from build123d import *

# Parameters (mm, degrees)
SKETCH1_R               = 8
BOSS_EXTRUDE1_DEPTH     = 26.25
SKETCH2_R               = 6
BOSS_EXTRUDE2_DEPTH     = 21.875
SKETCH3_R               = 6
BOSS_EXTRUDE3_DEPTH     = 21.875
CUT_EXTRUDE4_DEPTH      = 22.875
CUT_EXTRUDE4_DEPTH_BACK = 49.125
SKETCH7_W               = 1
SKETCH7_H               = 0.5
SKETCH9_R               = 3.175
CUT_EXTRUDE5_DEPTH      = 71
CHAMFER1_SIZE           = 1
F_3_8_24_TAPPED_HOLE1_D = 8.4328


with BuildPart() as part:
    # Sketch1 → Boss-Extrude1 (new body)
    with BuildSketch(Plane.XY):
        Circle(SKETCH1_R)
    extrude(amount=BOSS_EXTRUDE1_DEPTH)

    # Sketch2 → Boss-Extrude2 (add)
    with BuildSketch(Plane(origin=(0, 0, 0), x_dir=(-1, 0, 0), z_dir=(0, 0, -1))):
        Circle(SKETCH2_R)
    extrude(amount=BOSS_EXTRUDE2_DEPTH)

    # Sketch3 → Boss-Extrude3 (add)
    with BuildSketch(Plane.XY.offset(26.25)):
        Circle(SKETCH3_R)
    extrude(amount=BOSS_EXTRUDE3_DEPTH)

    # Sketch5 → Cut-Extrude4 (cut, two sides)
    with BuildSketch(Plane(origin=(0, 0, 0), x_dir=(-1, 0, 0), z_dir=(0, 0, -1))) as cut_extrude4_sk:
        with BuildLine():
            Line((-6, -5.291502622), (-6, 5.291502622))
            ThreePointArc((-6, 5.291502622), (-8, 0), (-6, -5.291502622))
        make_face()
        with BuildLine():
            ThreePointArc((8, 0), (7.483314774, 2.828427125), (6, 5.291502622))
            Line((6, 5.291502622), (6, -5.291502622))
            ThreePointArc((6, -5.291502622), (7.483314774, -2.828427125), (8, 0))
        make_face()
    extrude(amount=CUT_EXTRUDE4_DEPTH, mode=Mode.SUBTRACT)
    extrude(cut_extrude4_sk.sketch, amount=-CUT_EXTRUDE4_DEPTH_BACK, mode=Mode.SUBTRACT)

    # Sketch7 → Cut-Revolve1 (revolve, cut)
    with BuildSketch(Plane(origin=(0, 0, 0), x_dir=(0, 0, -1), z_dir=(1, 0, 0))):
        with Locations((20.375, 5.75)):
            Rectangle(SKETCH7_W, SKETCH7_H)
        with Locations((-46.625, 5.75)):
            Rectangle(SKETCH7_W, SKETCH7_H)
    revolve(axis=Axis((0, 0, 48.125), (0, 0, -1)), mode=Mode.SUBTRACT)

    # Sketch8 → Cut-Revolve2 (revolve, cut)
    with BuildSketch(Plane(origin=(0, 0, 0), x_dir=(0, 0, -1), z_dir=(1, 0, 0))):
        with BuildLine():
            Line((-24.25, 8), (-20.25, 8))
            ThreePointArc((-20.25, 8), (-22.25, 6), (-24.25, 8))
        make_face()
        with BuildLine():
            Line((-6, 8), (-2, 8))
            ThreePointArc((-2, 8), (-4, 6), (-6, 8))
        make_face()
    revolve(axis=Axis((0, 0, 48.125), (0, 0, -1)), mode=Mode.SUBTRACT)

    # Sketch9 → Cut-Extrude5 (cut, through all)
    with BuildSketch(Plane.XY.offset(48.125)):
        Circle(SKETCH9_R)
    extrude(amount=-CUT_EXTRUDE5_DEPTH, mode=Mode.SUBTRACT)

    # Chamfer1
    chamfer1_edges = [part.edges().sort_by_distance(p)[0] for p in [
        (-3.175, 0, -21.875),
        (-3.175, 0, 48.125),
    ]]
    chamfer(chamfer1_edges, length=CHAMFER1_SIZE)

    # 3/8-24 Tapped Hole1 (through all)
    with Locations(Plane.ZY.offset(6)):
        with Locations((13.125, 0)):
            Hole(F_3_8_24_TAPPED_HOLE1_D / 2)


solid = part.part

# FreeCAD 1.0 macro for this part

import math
import FreeCAD as App
import Part
import Sketcher

V = App.Vector


def edges_at(feature, points):
    """Names of the edges that pass closest to the given points."""
    edges = feature.Shape.Edges
    near = lambda p: min(range(len(edges)), key=lambda i: edges[i].distToShape(Part.Vertex(*p))[0])
    return sorted({f"Edge{near(p) + 1}" for p in points})


def add_polygon(sketch, points):
    """Adds a closed chain of lines whose ends are joined by coincident constraints."""
    first, n = sketch.GeometryCount, len(points)
    for a, b in zip(points, points[1:] + points[:1]):
        sketch.addGeometry(Part.LineSegment(App.Vector(*a, 0), App.Vector(*b, 0)), False)
    for i in range(n):
        sketch.addConstraint(Sketcher.Constraint("Coincident", first + i, 2, first + (i + 1) % n, 1))

doc = App.newDocument("Part")
body = doc.addObject("PartDesign::Body", "Body")

# Sketch on XY plane
sketch1 = body.newObject("Sketcher::SketchObject", "Sketch")
sketch1.AttachmentSupport = (doc.getObject("XY_Plane"), [""])
sketch1.MapMode = "FlatFace"
sketch1.addGeometry(Part.Circle(V(0, 0, 0), V(0, 0, 1), 8), False)
sketch1.addConstraint([
    Sketcher.Constraint("Coincident", 0, 3, -1, 1),
    Sketcher.Constraint("Diameter", 0, 16.0),
])
pad1 = body.newObject("PartDesign::Pad", "Pad")
pad1.Profile = sketch1
pad1.Length = 26.25

# Sketch on XY plane
sketch2 = body.newObject("Sketcher::SketchObject", "Sketch001")
sketch2.AttachmentSupport = (doc.getObject("XY_Plane"), [""])
sketch2.MapMode = "FlatFace"
sketch2.addGeometry(Part.Circle(V(0, 0, 0), V(0, 0, 1), 6), False)
sketch2.addConstraint([
    Sketcher.Constraint("Coincident", 0, 3, -1, 1),
    Sketcher.Constraint("Diameter", 0, 12.0),
])
pad2 = body.newObject("PartDesign::Pad", "Pad001")
pad2.Profile = sketch2
pad2.Length = 21.875
pad2.Reversed = True

# Sketch on XY plane
sketch3 = body.newObject("Sketcher::SketchObject", "Sketch002")
sketch3.AttachmentSupport = (doc.getObject("XY_Plane"), [""])
sketch3.MapMode = "FlatFace"
sketch3.AttachmentOffset = App.Placement(V(0, 0, 26.25), App.Rotation())
sketch3.addGeometry(Part.Circle(V(0, 0, 0), V(0, 0, 1), 6), False)
sketch3.addConstraint([
    Sketcher.Constraint("Coincident", 0, 3, -1, 1),
    Sketcher.Constraint("Diameter", 0, 12.0),
])
pad3 = body.newObject("PartDesign::Pad", "Pad002")
pad3.Profile = sketch3
pad3.Length = 21.875

# Sketch on XY plane
sketch4 = body.newObject("Sketcher::SketchObject", "Sketch003")
sketch4.AttachmentSupport = (doc.getObject("XY_Plane"), [""])
sketch4.MapMode = "FlatFace"
sketch4.addGeometry([
    Part.LineSegment(V(6, -5, 0), V(6, 5, 0)),  # 0
    Part.ArcOfCircle(Part.Circle(V(0, 0, 0), V(0, 0, 1), 8), math.radians(-41), math.radians(41)),  # 1
    Part.ArcOfCircle(Part.Circle(V(0, 0, 0), V(0, 0, 1), 8), math.radians(139), math.radians(180)),  # 2
    Part.LineSegment(V(-6, 5, 0), V(-6, -5, 0)),  # 3
    Part.ArcOfCircle(Part.Circle(V(0, 0, 0), V(0, 0, 1), 8), math.radians(180), math.radians(221)),  # 4
], False)
sketch4.addConstraint([
    Sketcher.Constraint("Coincident", 0, 1, 1, 1),
    Sketcher.Constraint("Coincident", 1, 2, 0, 2),
    Sketcher.Constraint("Coincident", 2, 1, 3, 1),
    Sketcher.Constraint("Coincident", 3, 2, 4, 2),
    Sketcher.Constraint("Tangent", 4, 1, 2, 2),
    Sketcher.Constraint("Vertical", 0),
    Sketcher.Constraint("Vertical", 3),
    Sketcher.Constraint("Coincident", 1, 3, -1, 1),
    Sketcher.Constraint("Coincident", 2, 3, -1, 1),
    Sketcher.Constraint("Equal", 1, 2),
    Sketcher.Constraint("Equal", 2, 4),
    Sketcher.Constraint("PointOnObject", 4, 1, -1),
    Sketcher.Constraint("Horizontal", 1, 2, 2, 1),
    Sketcher.Constraint("Radius", 1, 8.0),
    Sketcher.Constraint("DistanceX", -1, 1, 0, 1, 6.0),
])
pocket1 = body.newObject("PartDesign::Pocket", "Pocket")
pocket1.Profile = sketch4
pocket1.Type = "ThroughAll"
pocket1.Midplane = True

# Sketch on YZ plane
sketch5 = body.newObject("Sketcher::SketchObject", "Sketch004")
sketch5.AttachmentSupport = (doc.getObject("YZ_Plane"), [""])
sketch5.MapMode = "FlatFace"
add_polygon(sketch5, [(6, -19.9), (5.5, -19.9), (5.5, -20.9), (6, -20.9)])  # lines 0-3
add_polygon(sketch5, [(6, 47.1), (5.5, 47.1), (5.5, 46.1), (6, 46.1)])  # lines 4-7
sketch5.addConstraint([
    Sketcher.Constraint("Horizontal", 0),
    Sketcher.Constraint("Vertical", 1),
    Sketcher.Constraint("Horizontal", 2),
    Sketcher.Constraint("Vertical", 3),
    Sketcher.Constraint("Horizontal", 4),
    Sketcher.Constraint("Vertical", 5),
    Sketcher.Constraint("Horizontal", 6),
    Sketcher.Constraint("Vertical", 7),
    Sketcher.Constraint("Vertical", 1, 2, 4, 2),
    Sketcher.Constraint("Vertical", 3, 2, 6, 2),
    Sketcher.Constraint("Equal", 3, 5),
    Sketcher.Constraint("DistanceY", 1, 2, 1, 1, 1.0),
    Sketcher.Constraint("DistanceX", 0, 2, 0, 1, 0.5),
    Sketcher.Constraint("DistanceX", -1, 1, 2, 2, 6.0),
    Sketcher.Constraint("DistanceY", 0, 2, 4, 2, 67.0),
    Sketcher.Constraint("DistanceY", 0, 2, -1, 1, 19.875),
])
groove = body.newObject("PartDesign::Groove", "Groove")
groove.Profile = sketch5
groove.ReferenceAxis = (sketch5, ["V_Axis"])
groove.Angle = 360

# Sketch on YZ plane
sketch6 = body.newObject("Sketcher::SketchObject", "Sketch005")
sketch6.AttachmentSupport = (doc.getObject("YZ_Plane"), [""])
sketch6.MapMode = "FlatFace"
sketch6.addGeometry([
    Part.LineSegment(V(8, 20.2, 0), V(8, 24.2, 0)),
    Part.ArcOfCircle(Part.Circle(V(8, 22.2, 0), V(0, 0, 1), 2), math.radians(90), math.radians(270)),
    Part.LineSegment(V(8, 2, 0), V(8, 6, 0)),
    Part.ArcOfCircle(Part.Circle(V(8, 4, 0), V(0, 0, 1), 2), math.radians(90), math.radians(270)),
], False)
sketch6.addConstraint([
    Sketcher.Constraint("Coincident", 0, 1, 1, 2),
    Sketcher.Constraint("Coincident", 1, 1, 0, 2),
    Sketcher.Constraint("Coincident", 2, 1, 3, 2),
    Sketcher.Constraint("Coincident", 3, 1, 2, 2),
    Sketcher.Constraint("Vertical", 0),
    Sketcher.Constraint("Vertical", 2),
    Sketcher.Constraint("Equal", 1, 3),
    Sketcher.Constraint("Vertical", 1, 3, 3, 3),
    Sketcher.Constraint("Vertical", 3, 3, 0, 1),
    Sketcher.Constraint("Vertical", 1, 1, 2, 1),
    Sketcher.Constraint("Radius", 1, 2.0),
    Sketcher.Constraint("DistanceX", -1, 1, 1, 3, 8.0),
    Sketcher.Constraint("DistanceY", -1, 1, 3, 3, 4.0),
    Sketcher.Constraint("DistanceY", -1, 1, 1, 3, 22.25),
])
groove2 = body.newObject("PartDesign::Groove", "Groove001")
groove2.Profile = sketch6
groove2.ReferenceAxis = (sketch6, ["V_Axis"])
groove2.Angle = 360

# Sketch on XY plane
sketch7 = body.newObject("Sketcher::SketchObject", "Sketch006")
sketch7.AttachmentSupport = (doc.getObject("XY_Plane"), [""])
sketch7.MapMode = "FlatFace"
sketch7.AttachmentOffset = App.Placement(V(0, 0, 48.125), App.Rotation())
sketch7.addGeometry(Part.Circle(V(0, 0, 0), V(0, 0, 1), 3.2), False)
sketch7.addConstraint([
    Sketcher.Constraint("Coincident", 0, 3, -1, 1),
    Sketcher.Constraint("Diameter", 0, 6.35),
])
pocket2 = body.newObject("PartDesign::Pocket", "Pocket001")
pocket2.Profile = sketch7
pocket2.Type = "ThroughAll"
doc.recompute()

chamfer = body.newObject("PartDesign::Chamfer", "Chamfer")
chamfer.Base = (pocket2, edges_at(pocket2, [(-3.175, 0, -21.875), (-3.175, 0, 48.125)]))
chamfer.Size = 1

# Sketch on YZ plane
sketch8 = body.newObject("Sketcher::SketchObject", "Sketch007")
sketch8.AttachmentSupport = (doc.getObject("YZ_Plane"), [""])
sketch8.MapMode = "FlatFace"
sketch8.AttachmentOffset = App.Placement(V(0, 0, -6), App.Rotation())
sketch8.addGeometry(Part.Circle(V(0, 13.1, 0), V(0, 0, 1), 4.2), False)
sketch8.addConstraint([
    Sketcher.Constraint("PointOnObject", 0, 3, -2),
    Sketcher.Constraint("Diameter", 0, 8.4328),
    Sketcher.Constraint("DistanceY", -1, 1, 0, 3, 13.125),
])
doc.recompute()
hole = body.newObject("PartDesign::Hole", "Hole")
hole.Profile = sketch8
hole.ThreadType = "None"
hole.Diameter = 8.4328
hole.DepthType = "ThroughAll"
hole.Reversed = True

doc.recompute()
